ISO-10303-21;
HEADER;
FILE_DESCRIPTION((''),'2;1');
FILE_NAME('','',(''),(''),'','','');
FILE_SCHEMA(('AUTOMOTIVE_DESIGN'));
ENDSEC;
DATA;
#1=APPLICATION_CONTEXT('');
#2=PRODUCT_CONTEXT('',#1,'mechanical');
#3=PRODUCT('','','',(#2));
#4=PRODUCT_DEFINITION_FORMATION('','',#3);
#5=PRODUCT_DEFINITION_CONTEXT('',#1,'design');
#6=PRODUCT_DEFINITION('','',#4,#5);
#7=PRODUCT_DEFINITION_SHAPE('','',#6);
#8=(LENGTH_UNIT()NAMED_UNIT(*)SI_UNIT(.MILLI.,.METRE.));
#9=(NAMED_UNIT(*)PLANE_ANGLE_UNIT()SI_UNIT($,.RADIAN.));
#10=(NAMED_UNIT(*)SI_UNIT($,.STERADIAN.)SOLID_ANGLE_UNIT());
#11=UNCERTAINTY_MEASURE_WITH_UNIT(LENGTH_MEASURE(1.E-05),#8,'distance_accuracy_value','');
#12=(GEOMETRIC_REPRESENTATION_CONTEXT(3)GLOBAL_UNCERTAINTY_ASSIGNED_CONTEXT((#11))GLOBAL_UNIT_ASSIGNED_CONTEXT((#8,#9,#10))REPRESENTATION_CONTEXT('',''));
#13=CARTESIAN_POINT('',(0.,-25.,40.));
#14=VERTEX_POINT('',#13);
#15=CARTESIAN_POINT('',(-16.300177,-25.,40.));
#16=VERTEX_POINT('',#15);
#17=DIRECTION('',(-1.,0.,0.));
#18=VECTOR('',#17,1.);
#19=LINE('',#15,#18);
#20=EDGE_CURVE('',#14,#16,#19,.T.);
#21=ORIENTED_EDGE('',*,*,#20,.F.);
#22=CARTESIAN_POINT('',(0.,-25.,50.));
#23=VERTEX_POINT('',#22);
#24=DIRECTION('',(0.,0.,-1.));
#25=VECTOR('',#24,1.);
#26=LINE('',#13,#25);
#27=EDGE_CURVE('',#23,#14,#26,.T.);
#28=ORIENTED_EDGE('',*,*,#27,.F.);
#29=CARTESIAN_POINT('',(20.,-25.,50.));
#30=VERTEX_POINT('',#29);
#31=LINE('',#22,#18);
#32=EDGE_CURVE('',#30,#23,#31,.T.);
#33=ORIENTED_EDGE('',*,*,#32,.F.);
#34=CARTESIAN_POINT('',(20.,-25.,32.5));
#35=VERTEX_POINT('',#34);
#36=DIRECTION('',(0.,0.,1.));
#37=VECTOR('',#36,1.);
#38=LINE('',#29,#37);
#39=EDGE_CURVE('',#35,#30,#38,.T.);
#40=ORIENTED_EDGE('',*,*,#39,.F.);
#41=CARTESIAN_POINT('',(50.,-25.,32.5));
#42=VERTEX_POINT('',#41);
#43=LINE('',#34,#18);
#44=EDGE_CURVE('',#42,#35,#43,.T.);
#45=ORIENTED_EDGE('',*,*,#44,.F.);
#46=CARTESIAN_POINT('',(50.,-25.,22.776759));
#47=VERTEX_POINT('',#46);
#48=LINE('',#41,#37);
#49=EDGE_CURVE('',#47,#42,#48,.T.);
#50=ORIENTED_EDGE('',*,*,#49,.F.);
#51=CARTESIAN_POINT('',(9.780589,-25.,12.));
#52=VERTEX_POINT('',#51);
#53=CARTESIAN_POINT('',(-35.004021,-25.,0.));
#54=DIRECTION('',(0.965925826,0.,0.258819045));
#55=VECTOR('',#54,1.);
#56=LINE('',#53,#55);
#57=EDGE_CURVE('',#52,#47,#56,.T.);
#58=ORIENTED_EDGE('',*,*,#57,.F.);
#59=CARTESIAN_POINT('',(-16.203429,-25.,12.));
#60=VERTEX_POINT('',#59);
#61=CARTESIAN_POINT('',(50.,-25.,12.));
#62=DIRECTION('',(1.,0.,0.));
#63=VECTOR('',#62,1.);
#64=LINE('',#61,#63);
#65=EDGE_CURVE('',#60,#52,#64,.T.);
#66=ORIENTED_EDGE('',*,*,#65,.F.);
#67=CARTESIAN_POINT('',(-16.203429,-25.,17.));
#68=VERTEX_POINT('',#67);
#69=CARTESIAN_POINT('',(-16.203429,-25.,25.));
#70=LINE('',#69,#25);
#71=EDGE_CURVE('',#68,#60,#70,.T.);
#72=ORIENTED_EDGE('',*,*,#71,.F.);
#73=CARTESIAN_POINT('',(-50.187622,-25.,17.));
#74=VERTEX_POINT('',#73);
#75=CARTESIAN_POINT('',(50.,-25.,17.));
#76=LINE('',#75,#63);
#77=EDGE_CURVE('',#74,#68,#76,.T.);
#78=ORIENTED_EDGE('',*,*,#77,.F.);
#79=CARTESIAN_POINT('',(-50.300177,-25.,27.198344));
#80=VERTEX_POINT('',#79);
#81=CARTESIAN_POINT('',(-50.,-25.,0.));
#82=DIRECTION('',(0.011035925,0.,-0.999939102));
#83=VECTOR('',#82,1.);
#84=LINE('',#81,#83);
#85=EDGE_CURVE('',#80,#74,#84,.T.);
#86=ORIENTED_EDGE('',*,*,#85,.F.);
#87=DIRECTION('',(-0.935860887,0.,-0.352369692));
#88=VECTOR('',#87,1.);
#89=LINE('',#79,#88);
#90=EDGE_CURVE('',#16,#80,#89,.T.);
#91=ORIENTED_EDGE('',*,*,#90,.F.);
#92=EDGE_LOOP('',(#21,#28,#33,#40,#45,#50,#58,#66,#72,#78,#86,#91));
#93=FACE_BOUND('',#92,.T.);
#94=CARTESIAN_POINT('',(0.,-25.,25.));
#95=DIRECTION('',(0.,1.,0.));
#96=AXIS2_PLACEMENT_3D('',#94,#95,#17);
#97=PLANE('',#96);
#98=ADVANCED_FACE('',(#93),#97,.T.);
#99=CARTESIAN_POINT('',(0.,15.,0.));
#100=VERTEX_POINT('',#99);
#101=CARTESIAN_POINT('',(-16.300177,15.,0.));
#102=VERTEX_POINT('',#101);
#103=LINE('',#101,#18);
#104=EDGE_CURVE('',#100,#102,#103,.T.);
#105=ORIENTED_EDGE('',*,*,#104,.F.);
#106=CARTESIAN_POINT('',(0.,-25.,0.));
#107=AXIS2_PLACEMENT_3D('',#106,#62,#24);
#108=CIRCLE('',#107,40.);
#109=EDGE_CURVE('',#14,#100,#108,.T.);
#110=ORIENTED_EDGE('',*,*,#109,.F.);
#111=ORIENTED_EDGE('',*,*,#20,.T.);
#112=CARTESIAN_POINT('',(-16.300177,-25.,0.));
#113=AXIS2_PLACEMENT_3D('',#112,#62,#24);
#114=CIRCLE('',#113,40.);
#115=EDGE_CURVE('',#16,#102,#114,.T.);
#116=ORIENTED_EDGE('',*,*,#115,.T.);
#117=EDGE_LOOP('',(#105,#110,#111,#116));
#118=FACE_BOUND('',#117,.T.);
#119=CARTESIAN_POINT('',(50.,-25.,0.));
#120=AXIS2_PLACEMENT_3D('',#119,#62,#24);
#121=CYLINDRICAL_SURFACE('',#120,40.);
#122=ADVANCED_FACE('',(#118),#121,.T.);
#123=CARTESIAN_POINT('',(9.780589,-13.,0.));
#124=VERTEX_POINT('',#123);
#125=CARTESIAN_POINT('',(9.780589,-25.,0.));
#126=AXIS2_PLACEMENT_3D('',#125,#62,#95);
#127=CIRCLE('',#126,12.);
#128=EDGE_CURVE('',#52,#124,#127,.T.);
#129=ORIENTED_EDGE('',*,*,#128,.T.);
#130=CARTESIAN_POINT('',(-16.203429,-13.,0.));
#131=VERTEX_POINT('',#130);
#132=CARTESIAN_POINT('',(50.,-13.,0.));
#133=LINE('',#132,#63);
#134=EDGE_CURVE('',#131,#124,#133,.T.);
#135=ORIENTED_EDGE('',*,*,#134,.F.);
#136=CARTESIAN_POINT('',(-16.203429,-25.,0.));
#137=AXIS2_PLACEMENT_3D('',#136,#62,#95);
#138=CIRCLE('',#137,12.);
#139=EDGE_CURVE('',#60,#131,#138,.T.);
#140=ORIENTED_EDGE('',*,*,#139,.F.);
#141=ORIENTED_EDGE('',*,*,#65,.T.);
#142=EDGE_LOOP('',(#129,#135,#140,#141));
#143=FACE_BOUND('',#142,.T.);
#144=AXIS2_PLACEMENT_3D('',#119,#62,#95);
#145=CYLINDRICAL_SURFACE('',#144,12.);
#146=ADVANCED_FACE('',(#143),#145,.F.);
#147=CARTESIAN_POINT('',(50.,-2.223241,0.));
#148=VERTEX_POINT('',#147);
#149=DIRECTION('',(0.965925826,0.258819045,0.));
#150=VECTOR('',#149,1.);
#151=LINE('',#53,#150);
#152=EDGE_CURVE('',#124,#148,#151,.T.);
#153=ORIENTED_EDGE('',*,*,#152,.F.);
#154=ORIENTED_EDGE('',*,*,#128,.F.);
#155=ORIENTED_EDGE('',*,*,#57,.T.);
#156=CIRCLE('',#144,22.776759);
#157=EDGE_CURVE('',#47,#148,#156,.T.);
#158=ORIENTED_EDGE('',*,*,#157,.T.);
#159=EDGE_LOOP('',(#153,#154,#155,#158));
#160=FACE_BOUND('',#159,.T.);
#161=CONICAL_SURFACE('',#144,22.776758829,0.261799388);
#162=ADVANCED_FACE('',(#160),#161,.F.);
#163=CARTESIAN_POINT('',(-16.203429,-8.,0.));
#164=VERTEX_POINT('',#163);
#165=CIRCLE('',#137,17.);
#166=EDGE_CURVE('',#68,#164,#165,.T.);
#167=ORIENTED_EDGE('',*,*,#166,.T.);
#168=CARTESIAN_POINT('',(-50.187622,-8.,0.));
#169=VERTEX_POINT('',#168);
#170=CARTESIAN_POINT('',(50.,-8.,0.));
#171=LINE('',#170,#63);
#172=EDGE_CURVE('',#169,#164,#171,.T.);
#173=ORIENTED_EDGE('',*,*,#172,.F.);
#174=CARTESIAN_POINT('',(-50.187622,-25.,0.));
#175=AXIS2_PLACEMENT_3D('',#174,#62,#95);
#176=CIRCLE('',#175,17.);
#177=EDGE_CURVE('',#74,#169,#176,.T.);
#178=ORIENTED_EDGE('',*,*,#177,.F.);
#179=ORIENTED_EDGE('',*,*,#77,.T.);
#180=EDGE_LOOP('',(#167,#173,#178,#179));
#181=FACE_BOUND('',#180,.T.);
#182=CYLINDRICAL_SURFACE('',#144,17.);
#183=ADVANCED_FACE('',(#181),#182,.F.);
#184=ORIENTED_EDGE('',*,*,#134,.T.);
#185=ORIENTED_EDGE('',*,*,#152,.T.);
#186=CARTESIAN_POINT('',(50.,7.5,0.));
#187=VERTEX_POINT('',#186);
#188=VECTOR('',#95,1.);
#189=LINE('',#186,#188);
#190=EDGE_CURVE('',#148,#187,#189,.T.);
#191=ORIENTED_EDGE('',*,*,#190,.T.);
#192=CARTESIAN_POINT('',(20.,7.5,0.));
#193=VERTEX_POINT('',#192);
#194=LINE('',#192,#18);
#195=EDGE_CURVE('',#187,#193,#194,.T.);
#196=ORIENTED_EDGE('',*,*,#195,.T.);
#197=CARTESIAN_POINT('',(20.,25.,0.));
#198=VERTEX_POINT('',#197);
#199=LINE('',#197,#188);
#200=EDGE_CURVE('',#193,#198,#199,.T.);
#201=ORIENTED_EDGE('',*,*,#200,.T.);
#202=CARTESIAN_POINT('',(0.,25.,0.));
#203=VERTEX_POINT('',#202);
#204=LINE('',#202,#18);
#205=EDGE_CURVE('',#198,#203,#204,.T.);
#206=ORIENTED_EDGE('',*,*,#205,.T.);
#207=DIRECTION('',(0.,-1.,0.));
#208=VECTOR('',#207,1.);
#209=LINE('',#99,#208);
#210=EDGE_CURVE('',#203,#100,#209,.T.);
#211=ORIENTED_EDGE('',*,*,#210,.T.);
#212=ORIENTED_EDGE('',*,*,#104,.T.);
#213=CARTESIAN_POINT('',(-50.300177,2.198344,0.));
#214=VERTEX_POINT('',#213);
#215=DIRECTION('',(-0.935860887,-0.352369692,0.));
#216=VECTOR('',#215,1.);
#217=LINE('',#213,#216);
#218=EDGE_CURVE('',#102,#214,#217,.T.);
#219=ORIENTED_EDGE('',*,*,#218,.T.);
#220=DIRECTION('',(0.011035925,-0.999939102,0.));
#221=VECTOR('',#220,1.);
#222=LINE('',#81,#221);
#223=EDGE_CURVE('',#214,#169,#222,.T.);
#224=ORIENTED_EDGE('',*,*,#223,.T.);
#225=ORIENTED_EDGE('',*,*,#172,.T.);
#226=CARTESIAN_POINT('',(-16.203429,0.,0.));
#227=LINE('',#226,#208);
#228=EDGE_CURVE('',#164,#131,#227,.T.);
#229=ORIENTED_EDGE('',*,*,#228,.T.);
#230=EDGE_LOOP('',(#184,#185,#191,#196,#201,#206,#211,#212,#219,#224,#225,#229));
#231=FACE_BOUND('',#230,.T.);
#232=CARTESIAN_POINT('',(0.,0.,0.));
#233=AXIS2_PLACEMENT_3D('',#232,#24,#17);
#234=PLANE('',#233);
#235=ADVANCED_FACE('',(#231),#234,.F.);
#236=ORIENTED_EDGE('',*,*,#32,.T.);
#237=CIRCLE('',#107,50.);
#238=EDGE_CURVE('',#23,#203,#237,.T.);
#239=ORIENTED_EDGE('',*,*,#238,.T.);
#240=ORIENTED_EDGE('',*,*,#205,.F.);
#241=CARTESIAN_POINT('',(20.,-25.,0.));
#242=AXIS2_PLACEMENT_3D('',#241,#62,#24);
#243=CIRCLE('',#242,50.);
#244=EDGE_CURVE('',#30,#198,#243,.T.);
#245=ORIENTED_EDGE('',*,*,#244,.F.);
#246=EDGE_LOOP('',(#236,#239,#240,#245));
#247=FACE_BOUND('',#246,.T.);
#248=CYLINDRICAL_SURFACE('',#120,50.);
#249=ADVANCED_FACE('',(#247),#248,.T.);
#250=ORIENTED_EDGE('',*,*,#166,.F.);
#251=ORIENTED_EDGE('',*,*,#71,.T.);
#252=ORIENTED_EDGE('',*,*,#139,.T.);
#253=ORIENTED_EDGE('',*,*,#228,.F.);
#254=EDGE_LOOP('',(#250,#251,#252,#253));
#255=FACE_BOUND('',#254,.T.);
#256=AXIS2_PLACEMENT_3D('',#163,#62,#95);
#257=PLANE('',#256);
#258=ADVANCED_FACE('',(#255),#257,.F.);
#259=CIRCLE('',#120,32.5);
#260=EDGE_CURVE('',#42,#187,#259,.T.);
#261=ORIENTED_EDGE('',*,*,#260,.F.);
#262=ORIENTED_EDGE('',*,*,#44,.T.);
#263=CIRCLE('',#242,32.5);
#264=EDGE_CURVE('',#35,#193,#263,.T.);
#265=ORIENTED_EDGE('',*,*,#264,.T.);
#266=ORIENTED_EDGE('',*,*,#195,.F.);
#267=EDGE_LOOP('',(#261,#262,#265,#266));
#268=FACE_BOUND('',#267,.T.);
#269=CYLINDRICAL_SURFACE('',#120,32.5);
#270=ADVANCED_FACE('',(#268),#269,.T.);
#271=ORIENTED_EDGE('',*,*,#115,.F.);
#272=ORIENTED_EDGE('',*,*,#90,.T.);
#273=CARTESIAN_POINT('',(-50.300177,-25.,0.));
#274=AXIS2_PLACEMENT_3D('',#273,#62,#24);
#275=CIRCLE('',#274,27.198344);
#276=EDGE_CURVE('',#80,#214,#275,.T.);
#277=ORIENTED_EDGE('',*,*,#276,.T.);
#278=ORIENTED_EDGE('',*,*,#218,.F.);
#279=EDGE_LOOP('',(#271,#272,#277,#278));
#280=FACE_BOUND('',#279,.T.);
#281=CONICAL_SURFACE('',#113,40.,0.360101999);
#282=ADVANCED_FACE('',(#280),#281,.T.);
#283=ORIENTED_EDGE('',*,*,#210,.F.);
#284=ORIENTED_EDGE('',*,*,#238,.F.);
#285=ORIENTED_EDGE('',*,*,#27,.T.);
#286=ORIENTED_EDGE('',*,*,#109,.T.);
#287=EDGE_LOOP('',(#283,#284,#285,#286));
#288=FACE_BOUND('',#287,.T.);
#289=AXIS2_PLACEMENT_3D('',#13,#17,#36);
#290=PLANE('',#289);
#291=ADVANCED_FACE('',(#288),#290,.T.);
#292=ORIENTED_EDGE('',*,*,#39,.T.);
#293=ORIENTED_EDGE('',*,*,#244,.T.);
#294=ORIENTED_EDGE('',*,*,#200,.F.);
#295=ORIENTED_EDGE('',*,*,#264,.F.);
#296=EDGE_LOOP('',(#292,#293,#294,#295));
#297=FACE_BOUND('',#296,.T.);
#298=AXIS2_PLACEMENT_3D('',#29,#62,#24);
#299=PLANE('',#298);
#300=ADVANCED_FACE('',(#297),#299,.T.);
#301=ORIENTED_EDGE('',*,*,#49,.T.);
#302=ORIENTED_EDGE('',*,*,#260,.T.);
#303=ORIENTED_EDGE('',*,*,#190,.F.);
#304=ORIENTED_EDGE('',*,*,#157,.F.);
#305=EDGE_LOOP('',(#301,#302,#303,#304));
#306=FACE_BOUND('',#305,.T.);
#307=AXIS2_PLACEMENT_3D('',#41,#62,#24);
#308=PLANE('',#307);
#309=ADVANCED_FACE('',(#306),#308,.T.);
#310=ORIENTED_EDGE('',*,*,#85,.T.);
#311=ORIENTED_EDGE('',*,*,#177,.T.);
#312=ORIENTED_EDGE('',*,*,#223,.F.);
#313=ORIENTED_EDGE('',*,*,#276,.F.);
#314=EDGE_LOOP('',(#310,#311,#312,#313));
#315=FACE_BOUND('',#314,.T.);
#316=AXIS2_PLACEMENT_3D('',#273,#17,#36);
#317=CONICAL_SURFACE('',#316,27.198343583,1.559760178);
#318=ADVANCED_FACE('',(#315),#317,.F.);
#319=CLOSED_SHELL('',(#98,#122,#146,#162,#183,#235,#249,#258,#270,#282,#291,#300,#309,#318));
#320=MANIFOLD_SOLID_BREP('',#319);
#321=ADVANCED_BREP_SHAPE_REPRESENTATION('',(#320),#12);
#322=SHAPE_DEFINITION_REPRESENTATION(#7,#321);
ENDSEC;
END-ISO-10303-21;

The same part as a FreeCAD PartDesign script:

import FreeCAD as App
import Part
import Sketcher
Q = App.Units.Quantity

doc = App.newDocument("Part")
body = doc.addObject("PartDesign::Body", "Body")

# Sketch on XY plane
sketch1 = body.newObject("Sketcher::SketchObject", "Sketch")
sketch1.AttachmentSupport = (doc.getObject("XY_Plane"), [""])
sketch1.MapMode = "FlatFace"
sketch1.addGeometry(Part.LineSegment(App.Vector(-50, 2, 0), App.Vector(-50, -25, 0)), False)
sketch1.addGeometry(Part.LineSegment(App.Vector(-50, -25, 0), App.Vector(50, -25, 0)), False)
sketch1.addGeometry(Part.LineSegment(App.Vector(50, -25, 0), App.Vector(50, 8, 0)), False)
sketch1.addGeometry(Part.LineSegment(App.Vector(50, 8, 0), App.Vector(20, 8, 0)), False)
sketch1.addGeometry(Part.LineSegment(App.Vector(20, 8, 0), App.Vector(20, 25, 0)), False)
sketch1.addGeometry(Part.LineSegment(App.Vector(20, 25, 0), App.Vector(0, 25, 0)), False)
sketch1.addGeometry(Part.LineSegment(App.Vector(0, 25, 0), App.Vector(0, 15, 0)), False)
sketch1.addGeometry(Part.LineSegment(App.Vector(0, 15, 0), App.Vector(-16, 15, 0)), False)
sketch1.addGeometry(Part.LineSegment(App.Vector(-16, 15, 0), App.Vector(-50, 2, 0)), False)
sketch1.addGeometry(Part.LineSegment(App.Vector(50, -25, 0), App.Vector(-50, -25, 0)), True)  # axis
sketch1.addConstraint(Sketcher.Constraint("Coincident", 0, 2, 1, 1))
sketch1.addConstraint(Sketcher.Constraint("Coincident", 1, 2, 2, 1))
sketch1.addConstraint(Sketcher.Constraint("Coincident", 2, 2, 3, 1))
sketch1.addConstraint(Sketcher.Constraint("Coincident", 3, 2, 4, 1))
sketch1.addConstraint(Sketcher.Constraint("Coincident", 4, 2, 5, 1))
sketch1.addConstraint(Sketcher.Constraint("Coincident", 5, 2, 6, 1))
sketch1.addConstraint(Sketcher.Constraint("Coincident", 6, 2, 7, 1))
sketch1.addConstraint(Sketcher.Constraint("Coincident", 7, 2, 8, 1))
sketch1.addConstraint(Sketcher.Constraint("Coincident", 8, 2, 0, 1))
sketch1.addConstraint(Sketcher.Constraint("Horizontal", 1))
sketch1.addConstraint(Sketcher.Constraint("Vertical", 2))
sketch1.addConstraint(Sketcher.Constraint("Horizontal", 3))
sketch1.addConstraint(Sketcher.Constraint("Vertical", 4))
sketch1.addConstraint(Sketcher.Constraint("Horizontal", 5))
sketch1.addConstraint(Sketcher.Constraint("Vertical", 6))
sketch1.addConstraint(Sketcher.Constraint("Horizontal", 7))
sketch1.addConstraint(Sketcher.Constraint("Horizontal", 9))
sketch1.addConstraint(Sketcher.Constraint("Coincident", 9, 1, 1, 2))
sketch1.addConstraint(Sketcher.Constraint("PointOnObject", 5, 2, -2))
sketch1.addConstraint(Sketcher.Constraint("Vertical", 8, 2, 9, 2))
sketch1.addConstraint(Sketcher.Constraint("DistanceX", 1, 1, 1, 2, Q("100 mm")))
sketch1.addConstraint(Sketcher.Constraint("DistanceX", 3, 2, 3, 1, Q("30 mm")))
sketch1.addConstraint(Sketcher.Constraint("DistanceX", 5, 2, 5, 1, Q("20 mm")))
sketch1.addConstraint(Sketcher.Constraint("DistanceY", 6, 2, 6, 1, Q("10 mm")))
sketch1.addConstraint(Sketcher.Constraint("DistanceY", 2, 1, 2, 2, Q("32.5 mm")))
sketch1.addConstraint(Sketcher.Constraint("DistanceY", 4, 1, 4, 2, Q("17.5 mm")))
sketch1.addConstraint(Sketcher.Constraint("DistanceY", 0, 2, -1, 1, Q("25 mm")))
sketch1.addConstraint(Sketcher.Constraint("DistanceX", 8, 2, 7, 2, Q("34 mm")))
sketch1.addConstraint(Sketcher.Constraint("Distance", 0, Q("27.2 mm")))
sketch1.addConstraint(Sketcher.Constraint("DistanceX", 7, 2, 7, 1, Q("16.300177 mm")))
revolution = body.newObject("PartDesign::Revolution", "Revolution")
revolution.Profile = sketch1
revolution.ReferenceAxis = (sketch1, ["Axis0"])
revolution.Angle = 270

# Sketch on XY plane
sketch2 = body.newObject("Sketcher::SketchObject", "Sketch001")
sketch2.AttachmentSupport = (doc.getObject("XY_Plane"), [""])
sketch2.MapMode = "FlatFace"
sketch2.addGeometry(Part.LineSegment(App.Vector(-16, -8, 0), App.Vector(-50, -8, 0)), False)
sketch2.addGeometry(Part.LineSegment(App.Vector(-50, -8, 0), App.Vector(-50, -25, 0)), False)
sketch2.addGeometry(Part.LineSegment(App.Vector(-50, -25, 0), App.Vector(50, -25, 0)), False)
sketch2.addGeometry(Part.LineSegment(App.Vector(50, -25, 0), App.Vector(50, -2, 0)), False)
sketch2.addGeometry(Part.LineSegment(App.Vector(50, -2, 0), App.Vector(10, -13, 0)), False)
sketch2.addGeometry(Part.LineSegment(App.Vector(10, -13, 0), App.Vector(-16, -13, 0)), False)
sketch2.addGeometry(Part.LineSegment(App.Vector(-16, -13, 0), App.Vector(-16, -8, 0)), False)
sketch2.addGeometry(Part.LineSegment(App.Vector(50, -25, 0), App.Vector(-50, -25, 0)), True)  # axis
sketch2.addConstraint(Sketcher.Constraint("Coincident", 0, 2, 1, 1))
sketch2.addConstraint(Sketcher.Constraint("Coincident", 1, 2, 2, 1))
sketch2.addConstraint(Sketcher.Constraint("Coincident", 2, 2, 3, 1))
sketch2.addConstraint(Sketcher.Constraint("Coincident", 3, 2, 4, 1))
sketch2.addConstraint(Sketcher.Constraint("Coincident", 4, 2, 5, 1))
sketch2.addConstraint(Sketcher.Constraint("Coincident", 5, 2, 6, 1))
sketch2.addConstraint(Sketcher.Constraint("Coincident", 6, 2, 0, 1))
sketch2.addConstraint(Sketcher.Constraint("Horizontal", 0))
sketch2.addConstraint(Sketcher.Constraint("Horizontal", 2))
sketch2.addConstraint(Sketcher.Constraint("Vertical", 3))
sketch2.addConstraint(Sketcher.Constraint("Horizontal", 5))
sketch2.addConstraint(Sketcher.Constraint("Vertical", 6))
sketch2.addConstraint(Sketcher.Constraint("Horizontal", 7))
sketch2.addConstraint(Sketcher.Constraint("Coincident", 7, 1, 2, 2))
sketch2.addConstraint(Sketcher.Constraint("Equal", 2, 7))
sketch2.addConstraint(Sketcher.Constraint("DistanceY", 6, 1, 6, 2, Q("5 mm")))
sketch2.addConstraint(Sketcher.Constraint("Angle", 4, Q("-165 deg")))
sketch2.addConstraint(Sketcher.Constraint("DistanceY", 0, 2, -1, 1, Q("8 mm")))
sketch2.addConstraint(Sketcher.Constraint("DistanceY", 1, 2, -1, 1, Q("25 mm")))
sketch2.addConstraint(Sketcher.Constraint("DistanceX", -1, 1, 2, 2, Q("50 mm")))
sketch2.addConstraint(Sketcher.Constraint("Distance", 4, Q("41.638199 mm")))
sketch2.addConstraint(Sketcher.Constraint("DistanceX", 0, 2, 0, 1, Q("33.984193 mm")))
sketch2.addConstraint(Sketcher.Constraint("DistanceX", 2, 1, 2, 2, Q("100.300177 mm")))
sketch2.addConstraint(Sketcher.Constraint("DistanceX", 5, 2, 5, 1, Q("25.984018 mm")))
groove = body.newObject("PartDesign::Groove", "Groove")
groove.Profile = sketch2
groove.ReferenceAxis = (sketch2, ["Axis0"])
groove.Angle = 360

doc.recompute()
